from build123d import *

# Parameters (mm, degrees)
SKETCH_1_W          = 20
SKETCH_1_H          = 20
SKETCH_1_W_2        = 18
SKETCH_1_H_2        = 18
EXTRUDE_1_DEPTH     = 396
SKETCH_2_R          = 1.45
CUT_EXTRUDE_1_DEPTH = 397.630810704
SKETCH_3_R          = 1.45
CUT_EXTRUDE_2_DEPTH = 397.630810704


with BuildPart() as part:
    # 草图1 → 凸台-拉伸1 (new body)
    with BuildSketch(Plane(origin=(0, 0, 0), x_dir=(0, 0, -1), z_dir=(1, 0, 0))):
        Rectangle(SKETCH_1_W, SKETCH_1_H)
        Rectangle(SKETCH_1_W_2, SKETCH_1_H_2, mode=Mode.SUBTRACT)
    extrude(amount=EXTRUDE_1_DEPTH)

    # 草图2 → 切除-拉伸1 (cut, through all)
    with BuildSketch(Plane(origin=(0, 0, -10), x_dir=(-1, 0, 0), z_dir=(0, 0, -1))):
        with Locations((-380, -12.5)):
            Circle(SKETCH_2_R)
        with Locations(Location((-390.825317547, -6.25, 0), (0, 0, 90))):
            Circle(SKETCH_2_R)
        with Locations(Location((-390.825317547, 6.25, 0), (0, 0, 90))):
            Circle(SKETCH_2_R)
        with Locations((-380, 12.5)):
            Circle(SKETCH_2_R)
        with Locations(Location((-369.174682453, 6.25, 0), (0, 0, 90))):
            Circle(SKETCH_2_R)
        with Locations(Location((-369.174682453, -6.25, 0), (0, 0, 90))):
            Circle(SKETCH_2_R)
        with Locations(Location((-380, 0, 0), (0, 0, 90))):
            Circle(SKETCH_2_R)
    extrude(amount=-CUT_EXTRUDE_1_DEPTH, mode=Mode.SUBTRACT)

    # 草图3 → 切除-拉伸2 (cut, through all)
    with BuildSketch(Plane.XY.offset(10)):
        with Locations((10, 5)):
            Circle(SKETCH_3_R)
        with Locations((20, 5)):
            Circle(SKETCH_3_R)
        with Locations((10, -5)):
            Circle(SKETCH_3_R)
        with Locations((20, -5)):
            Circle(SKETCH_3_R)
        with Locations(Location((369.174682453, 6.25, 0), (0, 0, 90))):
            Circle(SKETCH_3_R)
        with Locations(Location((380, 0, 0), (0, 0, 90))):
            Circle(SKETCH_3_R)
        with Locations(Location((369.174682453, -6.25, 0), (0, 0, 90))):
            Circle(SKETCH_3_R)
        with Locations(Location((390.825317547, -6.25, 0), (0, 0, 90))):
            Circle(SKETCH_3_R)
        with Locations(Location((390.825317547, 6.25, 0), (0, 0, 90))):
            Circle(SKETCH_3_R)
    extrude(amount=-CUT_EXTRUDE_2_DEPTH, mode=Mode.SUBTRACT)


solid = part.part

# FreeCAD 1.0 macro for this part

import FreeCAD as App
import Part
import Sketcher


def add_polygon(sketch, points):
    """Adds a closed chain of lines whose ends are joined by coincident constraints."""
    first, n = sketch.GeometryCount, len(points)
    for a, b in zip(points, points[1:] + points[:1]):
        sketch.addGeometry(Part.LineSegment(App.Vector(*a, 0), App.Vector(*b, 0)), False)
    for i in range(n):
        sketch.addConstraint(Sketcher.Constraint("Coincident", first + i, 2, first + (i + 1) % n, 1))

doc = App.newDocument("Part")
body = doc.addObject("PartDesign::Body", "Body")

# Sketch on YZ plane
sketch1 = body.newObject("Sketcher::SketchObject", "Sketch")
sketch1.AttachmentSupport = (doc.getObject("YZ_Plane"), [""])
sketch1.MapMode = "FlatFace"
add_polygon(sketch1, [(10, 10), (-10, 10), (-10, -10), (10, -10)])  # lines 0-3
add_polygon(sketch1, [(-9, -9), (-9, 9), (9, 9), (9, -9)])  # lines 4-7
sketch1.addConstraint([
    Sketcher.Constraint("Horizontal", 0),
    Sketcher.Constraint("Vertical", 1),
    Sketcher.Constraint("Horizontal", 2),
    Sketcher.Constraint("Vertical", 3),
    Sketcher.Constraint("Vertical", 4),
    Sketcher.Constraint("Horizontal", 5),
    Sketcher.Constraint("Vertical", 6),
    Sketcher.Constraint("Horizontal", 7),
    Sketcher.Constraint("Symmetric", 0, 2, 2, 2, -1, 1),
    Sketcher.Constraint("Symmetric", 4, 2, 6, 2, -1, 1),
    Sketcher.Constraint("Equal", 2, 1),
    Sketcher.Constraint("Equal", 7, 4),
    Sketcher.Constraint("DistanceX", 0, 2, 0, 1, 20.0),
    Sketcher.Constraint("DistanceX", 5, 1, 5, 2, 18.0),
])
pad1 = body.newObject("PartDesign::Pad", "Pad")
pad1.Profile = sketch1
pad1.Length = 396

# Sketch on XY plane
sketch2 = body.newObject("Sketcher::SketchObject", "Sketch001")
sketch2.AttachmentSupport = (doc.getObject("XY_Plane"), [""])
sketch2.MapMode = "FlatFace"
sketch2.AttachmentOffset = App.Placement(App.Vector(0, 0, -10), App.Rotation())
sketch2.addGeometry([
    Part.Circle(App.Vector(380, -12.5, 0), App.Vector(0, 0, 1), 1.45),  # 0
    Part.Circle(App.Vector(390.825318, -6.25, 0), App.Vector(0, 0, 1), 1.45),  # 1
    Part.Circle(App.Vector(390.825318, 6.25, 0), App.Vector(0, 0, 1), 1.45),  # 2
    Part.Circle(App.Vector(380, 12.5, 0), App.Vector(0, 0, 1), 1.45),  # 3
    Part.Circle(App.Vector(369.174682, 6.25, 0), App.Vector(0, 0, 1), 1.45),  # 4
    Part.Circle(App.Vector(369.174682, -6.25, 0), App.Vector(0, 0, 1), 1.45),  # 5
    Part.Circle(App.Vector(380, 0, 0), App.Vector(0, 0, 1), 1.45),  # 6
], False)
sketch2.addConstraint([
    Sketcher.Constraint("Equal", 0, 1),
    Sketcher.Constraint("Equal", 1, 2),
    Sketcher.Constraint("Equal", 2, 3),
    Sketcher.Constraint("Equal", 3, 4),
    Sketcher.Constraint("Equal", 4, 5),
    Sketcher.Constraint("Equal", 5, 6),
    Sketcher.Constraint("Symmetric", 1, 3, 2, 3, -1),
    Sketcher.Constraint("Symmetric", 0, 3, 3, 3, -1),
    Sketcher.Constraint("Symmetric", 4, 3, 5, 3, -1),
    Sketcher.Constraint("PointOnObject", 6, 3, -1),
    Sketcher.Constraint("Horizontal", 2, 3, 4, 3),
    Sketcher.Constraint("Vertical", 3, 3, 6, 3),
    Sketcher.Constraint("Diameter", 0, 2.9),
    Sketcher.Constraint("DistanceX", -1, 1, 0, 3, 380.0),
    Sketcher.Constraint("DistanceY", 0, 3, 3, 3, 25.0),
    Sketcher.Constraint("DistanceY", 1, 3, 2, 3, 12.5),
    Sketcher.Constraint("DistanceX", -1, 1, 1, 3, 390.825318),
    Sketcher.Constraint("DistanceX", -1, 1, 4, 3, 369.174682),
])
pocket1 = body.newObject("PartDesign::Pocket", "Pocket")
pocket1.Profile = sketch2
pocket1.Type = "ThroughAll"
pocket1.Reversed = True

# Sketch on XY plane
sketch3 = body.newObject("Sketcher::SketchObject", "Sketch002")
sketch3.AttachmentSupport = (doc.getObject("XY_Plane"), [""])
sketch3.MapMode = "FlatFace"
sketch3.AttachmentOffset = App.Placement(App.Vector(0, 0, 10), App.Rotation())
sketch3.addGeometry([
    Part.Circle(App.Vector(10, 5, 0), App.Vector(0, 0, 1), 1.45),  # 0
    Part.Circle(App.Vector(20, 5, 0), App.Vector(0, 0, 1), 1.45),  # 1
    Part.Circle(App.Vector(10, -5, 0), App.Vector(0, 0, 1), 1.45),  # 2
    Part.Circle(App.Vector(20, -5, 0), App.Vector(0, 0, 1), 1.45),  # 3
    Part.Circle(App.Vector(369.174682, 6.25, 0), App.Vector(0, 0, 1), 1.45),  # 4
    Part.Circle(App.Vector(380, 0, 0), App.Vector(0, 0, 1), 1.45),  # 5
    Part.Circle(App.Vector(369.174682, -6.25, 0), App.Vector(0, 0, 1), 1.45),  # 6
    Part.Circle(App.Vector(390.825318, -6.25, 0), App.Vector(0, 0, 1), 1.45),  # 7
    Part.Circle(App.Vector(390.825318, 6.25, 0), App.Vector(0, 0, 1), 1.45),  # 8
], False)
sketch3.addConstraint([
    Sketcher.Constraint("Equal", 0, 1),
    Sketcher.Constraint("Equal", 1, 2),
    Sketcher.Constraint("Equal", 2, 3),
    Sketcher.Constraint("Equal", 3, 4),
    Sketcher.Constraint("Equal", 4, 5),
    Sketcher.Constraint("Equal", 5, 6),
    Sketcher.Constraint("Equal", 6, 7),
    Sketcher.Constraint("Equal", 7, 8),
    Sketcher.Constraint("Symmetric", 0, 3, 2, 3, -1),
    Sketcher.Constraint("Symmetric", 1, 3, 3, 3, -1),
    Sketcher.Constraint("Symmetric", 4, 3, 6, 3, -1),
    Sketcher.Constraint("Symmetric", 7, 3, 8, 3, -1),
    Sketcher.Constraint("PointOnObject", 5, 3, -1),
    Sketcher.Constraint("Horizontal", 0, 3, 1, 3),
    Sketcher.Constraint("Horizontal", 6, 3, 7, 3),
    Sketcher.Constraint("Diameter", 0, 2.9),
    Sketcher.Constraint("DistanceX", -1, 1, 0, 3, 10.0),
    Sketcher.Constraint("DistanceY", -1, 1, 0, 3, 5.0),
    Sketcher.Constraint("DistanceX", -1, 1, 1, 3, 20.0),
    Sketcher.Constraint("DistanceX", -1, 1, 5, 3, 380.0),
    Sketcher.Constraint("DistanceY", 6, 3, 4, 3, 12.5),
    Sketcher.Constraint("DistanceX", -1, 1, 4, 3, 369.174682),
    Sketcher.Constraint("DistanceX", -1, 1, 7, 3, 390.825318),
])
pocket2 = body.newObject("PartDesign::Pocket", "Pocket001")
pocket2.Profile = sketch3
pocket2.Type = "ThroughAll"

doc.recompute()
